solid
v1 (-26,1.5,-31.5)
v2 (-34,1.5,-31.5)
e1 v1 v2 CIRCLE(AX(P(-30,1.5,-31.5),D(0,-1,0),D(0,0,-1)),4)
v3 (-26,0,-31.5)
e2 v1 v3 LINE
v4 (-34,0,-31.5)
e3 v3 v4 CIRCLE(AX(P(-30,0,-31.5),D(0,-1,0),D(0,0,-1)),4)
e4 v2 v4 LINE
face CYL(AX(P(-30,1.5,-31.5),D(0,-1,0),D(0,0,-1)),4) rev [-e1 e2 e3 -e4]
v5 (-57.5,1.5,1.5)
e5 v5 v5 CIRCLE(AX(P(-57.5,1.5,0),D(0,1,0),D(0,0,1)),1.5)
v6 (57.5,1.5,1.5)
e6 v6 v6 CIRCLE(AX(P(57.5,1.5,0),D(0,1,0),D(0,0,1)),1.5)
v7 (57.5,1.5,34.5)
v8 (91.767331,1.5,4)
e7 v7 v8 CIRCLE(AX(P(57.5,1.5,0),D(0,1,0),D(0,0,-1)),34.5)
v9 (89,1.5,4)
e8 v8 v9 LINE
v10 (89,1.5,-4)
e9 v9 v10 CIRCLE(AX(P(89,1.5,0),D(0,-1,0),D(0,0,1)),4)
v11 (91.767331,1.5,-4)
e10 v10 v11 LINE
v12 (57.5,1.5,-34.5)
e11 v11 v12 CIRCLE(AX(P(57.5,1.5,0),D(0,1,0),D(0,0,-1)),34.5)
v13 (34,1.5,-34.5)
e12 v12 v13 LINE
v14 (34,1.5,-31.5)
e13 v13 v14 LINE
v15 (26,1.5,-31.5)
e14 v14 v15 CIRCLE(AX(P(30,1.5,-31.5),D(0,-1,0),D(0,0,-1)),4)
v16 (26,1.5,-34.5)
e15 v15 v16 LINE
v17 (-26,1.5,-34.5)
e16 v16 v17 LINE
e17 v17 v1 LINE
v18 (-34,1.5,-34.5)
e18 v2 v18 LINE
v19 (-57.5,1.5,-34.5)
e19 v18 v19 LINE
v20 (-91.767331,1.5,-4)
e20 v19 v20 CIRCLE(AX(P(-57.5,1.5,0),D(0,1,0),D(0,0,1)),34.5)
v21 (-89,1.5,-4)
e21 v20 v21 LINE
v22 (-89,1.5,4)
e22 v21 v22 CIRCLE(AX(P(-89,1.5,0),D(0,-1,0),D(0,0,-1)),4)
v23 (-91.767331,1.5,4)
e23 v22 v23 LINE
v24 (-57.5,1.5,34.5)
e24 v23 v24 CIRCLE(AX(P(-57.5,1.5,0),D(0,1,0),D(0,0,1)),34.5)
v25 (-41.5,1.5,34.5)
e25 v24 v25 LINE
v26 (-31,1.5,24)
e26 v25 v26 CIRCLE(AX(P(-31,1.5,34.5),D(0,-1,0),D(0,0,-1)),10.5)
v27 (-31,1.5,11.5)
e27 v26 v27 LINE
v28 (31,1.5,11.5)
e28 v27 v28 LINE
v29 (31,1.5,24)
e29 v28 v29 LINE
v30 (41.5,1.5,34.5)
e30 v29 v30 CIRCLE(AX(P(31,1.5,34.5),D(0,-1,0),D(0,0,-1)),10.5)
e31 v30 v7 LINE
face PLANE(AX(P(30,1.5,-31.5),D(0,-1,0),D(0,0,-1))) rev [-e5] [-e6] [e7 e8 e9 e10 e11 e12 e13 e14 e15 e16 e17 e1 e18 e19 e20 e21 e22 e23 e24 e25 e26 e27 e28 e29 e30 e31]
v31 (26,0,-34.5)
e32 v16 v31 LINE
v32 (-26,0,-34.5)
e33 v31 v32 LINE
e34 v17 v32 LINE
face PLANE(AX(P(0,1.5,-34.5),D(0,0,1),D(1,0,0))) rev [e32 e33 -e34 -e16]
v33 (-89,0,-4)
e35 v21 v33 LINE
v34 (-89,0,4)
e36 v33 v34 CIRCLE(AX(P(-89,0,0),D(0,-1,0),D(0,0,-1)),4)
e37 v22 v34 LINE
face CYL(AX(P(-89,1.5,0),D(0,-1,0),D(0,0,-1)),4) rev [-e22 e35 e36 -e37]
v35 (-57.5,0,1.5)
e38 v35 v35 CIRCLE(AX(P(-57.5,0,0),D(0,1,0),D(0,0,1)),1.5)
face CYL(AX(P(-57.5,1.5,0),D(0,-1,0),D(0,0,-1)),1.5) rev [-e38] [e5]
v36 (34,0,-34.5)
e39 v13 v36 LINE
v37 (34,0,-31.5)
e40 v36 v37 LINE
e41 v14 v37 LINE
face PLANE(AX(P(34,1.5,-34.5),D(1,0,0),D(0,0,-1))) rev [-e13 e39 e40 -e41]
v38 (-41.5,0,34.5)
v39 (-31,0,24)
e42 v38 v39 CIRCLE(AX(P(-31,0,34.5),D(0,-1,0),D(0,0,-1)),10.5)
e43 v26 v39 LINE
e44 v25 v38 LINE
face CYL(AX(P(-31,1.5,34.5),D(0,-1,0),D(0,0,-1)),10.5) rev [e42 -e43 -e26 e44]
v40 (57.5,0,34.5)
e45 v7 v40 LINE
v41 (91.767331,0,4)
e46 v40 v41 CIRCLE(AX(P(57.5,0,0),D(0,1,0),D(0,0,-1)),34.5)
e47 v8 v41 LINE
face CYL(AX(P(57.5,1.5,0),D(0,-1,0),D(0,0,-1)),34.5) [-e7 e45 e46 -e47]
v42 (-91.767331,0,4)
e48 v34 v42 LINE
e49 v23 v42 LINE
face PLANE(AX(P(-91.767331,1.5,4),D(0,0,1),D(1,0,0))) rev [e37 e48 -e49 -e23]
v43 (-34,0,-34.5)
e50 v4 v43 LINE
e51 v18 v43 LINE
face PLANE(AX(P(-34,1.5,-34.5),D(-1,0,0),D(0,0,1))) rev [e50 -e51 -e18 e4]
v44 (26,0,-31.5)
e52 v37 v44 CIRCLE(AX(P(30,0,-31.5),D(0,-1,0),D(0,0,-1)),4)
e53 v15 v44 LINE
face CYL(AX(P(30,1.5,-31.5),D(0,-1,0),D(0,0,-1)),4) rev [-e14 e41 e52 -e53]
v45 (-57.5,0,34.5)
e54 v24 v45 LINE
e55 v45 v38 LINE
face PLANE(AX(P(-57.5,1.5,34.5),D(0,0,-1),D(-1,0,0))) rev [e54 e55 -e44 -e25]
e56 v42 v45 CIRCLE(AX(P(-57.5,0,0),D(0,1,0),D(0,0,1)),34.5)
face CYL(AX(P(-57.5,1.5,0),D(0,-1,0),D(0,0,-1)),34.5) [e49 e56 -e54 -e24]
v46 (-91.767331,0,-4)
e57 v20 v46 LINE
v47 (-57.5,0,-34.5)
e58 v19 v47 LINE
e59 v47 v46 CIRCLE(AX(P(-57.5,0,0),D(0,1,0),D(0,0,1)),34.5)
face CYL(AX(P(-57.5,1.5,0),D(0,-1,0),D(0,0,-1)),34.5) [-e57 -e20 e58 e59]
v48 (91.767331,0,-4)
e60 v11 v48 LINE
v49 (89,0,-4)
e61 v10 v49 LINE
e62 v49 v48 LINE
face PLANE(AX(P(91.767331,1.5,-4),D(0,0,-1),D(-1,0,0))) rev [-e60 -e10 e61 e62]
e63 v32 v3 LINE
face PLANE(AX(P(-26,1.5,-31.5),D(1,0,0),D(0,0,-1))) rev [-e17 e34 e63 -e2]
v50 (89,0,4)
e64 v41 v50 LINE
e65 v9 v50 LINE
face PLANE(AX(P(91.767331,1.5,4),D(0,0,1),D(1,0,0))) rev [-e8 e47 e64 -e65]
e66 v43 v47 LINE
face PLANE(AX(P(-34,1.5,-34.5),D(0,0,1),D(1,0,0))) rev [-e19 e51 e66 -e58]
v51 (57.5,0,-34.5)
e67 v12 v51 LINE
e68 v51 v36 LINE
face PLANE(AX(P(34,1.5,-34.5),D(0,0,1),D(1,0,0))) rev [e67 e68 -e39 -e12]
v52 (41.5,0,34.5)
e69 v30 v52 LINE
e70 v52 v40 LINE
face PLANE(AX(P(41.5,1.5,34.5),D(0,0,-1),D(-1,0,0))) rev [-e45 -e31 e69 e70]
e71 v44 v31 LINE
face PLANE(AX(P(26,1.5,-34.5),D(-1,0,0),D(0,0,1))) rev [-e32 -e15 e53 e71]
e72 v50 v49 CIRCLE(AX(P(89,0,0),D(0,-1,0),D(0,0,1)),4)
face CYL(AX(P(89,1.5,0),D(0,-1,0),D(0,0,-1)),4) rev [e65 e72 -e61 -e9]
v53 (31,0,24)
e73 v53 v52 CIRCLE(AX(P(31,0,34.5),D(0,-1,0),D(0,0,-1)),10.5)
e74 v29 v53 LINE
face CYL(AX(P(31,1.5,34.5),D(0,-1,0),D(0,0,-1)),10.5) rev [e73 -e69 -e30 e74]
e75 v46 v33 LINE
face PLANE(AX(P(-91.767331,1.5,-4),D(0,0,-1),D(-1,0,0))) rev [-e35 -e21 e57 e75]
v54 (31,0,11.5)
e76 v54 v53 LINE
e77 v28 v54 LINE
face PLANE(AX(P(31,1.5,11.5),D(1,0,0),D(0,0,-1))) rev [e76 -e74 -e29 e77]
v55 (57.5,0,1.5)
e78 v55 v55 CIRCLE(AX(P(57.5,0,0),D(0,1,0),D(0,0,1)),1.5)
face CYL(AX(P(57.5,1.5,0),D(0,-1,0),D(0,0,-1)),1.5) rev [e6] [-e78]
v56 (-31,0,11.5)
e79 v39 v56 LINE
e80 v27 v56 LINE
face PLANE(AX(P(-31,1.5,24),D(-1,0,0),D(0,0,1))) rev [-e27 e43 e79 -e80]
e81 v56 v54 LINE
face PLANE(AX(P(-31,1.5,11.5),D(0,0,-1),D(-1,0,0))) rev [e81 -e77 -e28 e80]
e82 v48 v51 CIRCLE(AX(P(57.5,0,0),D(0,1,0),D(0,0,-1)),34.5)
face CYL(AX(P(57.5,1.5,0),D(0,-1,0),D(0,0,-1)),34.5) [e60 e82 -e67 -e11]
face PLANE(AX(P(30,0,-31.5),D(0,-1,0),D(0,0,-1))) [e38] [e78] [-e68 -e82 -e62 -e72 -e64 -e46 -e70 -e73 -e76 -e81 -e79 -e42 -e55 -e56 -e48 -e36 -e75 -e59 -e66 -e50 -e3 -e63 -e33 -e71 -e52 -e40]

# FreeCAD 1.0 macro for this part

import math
import FreeCAD as App
import Part
import Sketcher
Q = App.Units.Quantity

doc = App.newDocument("Part")
body = doc.addObject("PartDesign::Body", "Body")

sketch1 = body.newObject("Sketcher::SketchObject", "Sketch")
sketch1.AttachmentSupport = (doc.getObject("XZ_Plane"), [""])
sketch1.MapMode = "FlatFace"
sketch1.addGeometry(Part.LineSegment(App.Vector(-26, -34.5, 0), App.Vector(-26, -31.5, 0)), False)
sketch1.addGeometry(Part.ArcOfCircle(Part.Circle(App.Vector(-30, -31.5, 0), App.Vector(0, 0, 1), 4), math.radians(0), math.radians(180)), False)
sketch1.addGeometry(Part.LineSegment(App.Vector(-34, -31.5, 0), App.Vector(-34, -34.5, 0)), False)
sketch1.addGeometry(Part.LineSegment(App.Vector(-34, -34.5, 0), App.Vector(-57.5, -34.5, 0)), False)
sketch1.addGeometry(Part.ArcOfCircle(Part.Circle(App.Vector(-57.5, 0, 0), App.Vector(0, 0, 1), 34.5), math.radians(-173), math.radians(-90)), False)
sketch1.addGeometry(Part.LineSegment(App.Vector(-91.8, -4, 0), App.Vector(-89, -4, 0)), False)
sketch1.addGeometry(Part.ArcOfCircle(Part.Circle(App.Vector(-89, 0, 0), App.Vector(0, 0, 1), 4), math.radians(-90), math.radians(90)), False)
sketch1.addGeometry(Part.LineSegment(App.Vector(-89, 4, 0), App.Vector(-91.8, 4, 0)), False)
sketch1.addGeometry(Part.ArcOfCircle(Part.Circle(App.Vector(-57.5, 0, 0), App.Vector(0, 0, 1), 34.5), math.radians(90), math.radians(173)), False)
sketch1.addGeometry(Part.LineSegment(App.Vector(-57.5, 34.5, 0), App.Vector(-41.5, 34.5, 0)), False)
sketch1.addGeometry(Part.ArcOfCircle(Part.Circle(App.Vector(-31, 34.5, 0), App.Vector(0, 0, 1), 10.5), math.radians(-180), math.radians(-90)), False)
sketch1.addGeometry(Part.LineSegment(App.Vector(-31, 24, 0), App.Vector(-31, 11.5, 0)), False)
sketch1.addGeometry(Part.LineSegment(App.Vector(-31, 11.5, 0), App.Vector(31, 11.5, 0)), False)
sketch1.addGeometry(Part.LineSegment(App.Vector(31, 11.5, 0), App.Vector(31, 24, 0)), False)
sketch1.addGeometry(Part.ArcOfCircle(Part.Circle(App.Vector(31, 34.5, 0), App.Vector(0, 0, 1), 10.5), math.radians(-90), math.radians(0)), False)
sketch1.addGeometry(Part.LineSegment(App.Vector(41.5, 34.5, 0), App.Vector(57.5, 34.5, 0)), False)
sketch1.addGeometry(Part.ArcOfCircle(Part.Circle(App.Vector(57.5, 0, 0), App.Vector(0, 0, 1), 34.5), math.radians(7), math.radians(90)), False)
sketch1.addGeometry(Part.LineSegment(App.Vector(91.8, 4, 0), App.Vector(89, 4, 0)), False)
sketch1.addGeometry(Part.ArcOfCircle(Part.Circle(App.Vector(89, 0, 0), App.Vector(0, 0, 1), 4), math.radians(90), math.radians(270)), False)
sketch1.addGeometry(Part.LineSegment(App.Vector(89, -4, 0), App.Vector(91.8, -4, 0)), False)
sketch1.addGeometry(Part.ArcOfCircle(Part.Circle(App.Vector(57.5, 0, 0), App.Vector(0, 0, 1), 34.5), math.radians(-90), math.radians(-7)), False)
sketch1.addGeometry(Part.LineSegment(App.Vector(57.5, -34.5, 0), App.Vector(34, -34.5, 0)), False)
sketch1.addGeometry(Part.LineSegment(App.Vector(34, -34.5, 0), App.Vector(34, -31.5, 0)), False)
sketch1.addGeometry(Part.ArcOfCircle(Part.Circle(App.Vector(30, -31.5, 0), App.Vector(0, 0, 1), 4), math.radians(0), math.radians(180)), False)
sketch1.addGeometry(Part.LineSegment(App.Vector(26, -31.5, 0), App.Vector(26, -34.5, 0)), False)
sketch1.addGeometry(Part.LineSegment(App.Vector(26, -34.5, 0), App.Vector(-26, -34.5, 0)), False)
sketch1.addGeometry(Part.Circle(App.Vector(-57.5, 0, 0), App.Vector(0, 0, 1), 1.5), False)
sketch1.addGeometry(Part.Circle(App.Vector(57.5, 0, 0), App.Vector(0, 0, 1), 1.5), False)
sketch1.addConstraint(Sketcher.Constraint("Tangent", 0, 2, 1, 1))
sketch1.addConstraint(Sketcher.Constraint("Tangent", 1, 2, 2, 1))
sketch1.addConstraint(Sketcher.Constraint("Coincident", 2, 2, 3, 1))
sketch1.addConstraint(Sketcher.Constraint("Tangent", 3, 2, 4, 2))
sketch1.addConstraint(Sketcher.Constraint("Coincident", 4, 1, 5, 1))
sketch1.addConstraint(Sketcher.Constraint("Tangent", 5, 2, 6, 1))
sketch1.addConstraint(Sketcher.Constraint("Tangent", 6, 2, 7, 1))
sketch1.addConstraint(Sketcher.Constraint("Coincident", 7, 2, 8, 2))
sketch1.addConstraint(Sketcher.Constraint("Tangent", 8, 1, 9, 1))
sketch1.addConstraint(Sketcher.Constraint("Coincident", 9, 2, 10, 1))
sketch1.addConstraint(Sketcher.Constraint("Coincident", 10, 2, 11, 1))
sketch1.addConstraint(Sketcher.Constraint("Coincident", 11, 2, 12, 1))
sketch1.addConstraint(Sketcher.Constraint("Coincident", 12, 2, 13, 1))
sketch1.addConstraint(Sketcher.Constraint("Coincident", 13, 2, 14, 1))
sketch1.addConstraint(Sketcher.Constraint("Coincident", 14, 2, 15, 1))
sketch1.addConstraint(Sketcher.Constraint("Tangent", 15, 2, 16, 2))
sketch1.addConstraint(Sketcher.Constraint("Coincident", 16, 1, 17, 1))
sketch1.addConstraint(Sketcher.Constraint("Tangent", 17, 2, 18, 1))
sketch1.addConstraint(Sketcher.Constraint("Tangent", 18, 2, 19, 1))
sketch1.addConstraint(Sketcher.Constraint("Coincident", 19, 2, 20, 2))
sketch1.addConstraint(Sketcher.Constraint("Tangent", 20, 1, 21, 1))
sketch1.addConstraint(Sketcher.Constraint("Coincident", 21, 2, 22, 1))
sketch1.addConstraint(Sketcher.Constraint("Tangent", 22, 2, 23, 1))
sketch1.addConstraint(Sketcher.Constraint("Tangent", 23, 2, 24, 1))
sketch1.addConstraint(Sketcher.Constraint("Coincident", 24, 2, 25, 1))
sketch1.addConstraint(Sketcher.Constraint("Coincident", 25, 2, 0, 1))
sketch1.addConstraint(Sketcher.Constraint("Vertical", 0))
sketch1.addConstraint(Sketcher.Constraint("Vertical", 2))
sketch1.addConstraint(Sketcher.Constraint("Horizontal", 3))
sketch1.addConstraint(Sketcher.Constraint("Horizontal", 5))
sketch1.addConstraint(Sketcher.Constraint("Horizontal", 7))
sketch1.addConstraint(Sketcher.Constraint("Horizontal", 9))
sketch1.addConstraint(Sketcher.Constraint("Vertical", 11))
sketch1.addConstraint(Sketcher.Constraint("Horizontal", 12))
sketch1.addConstraint(Sketcher.Constraint("Vertical", 13))
sketch1.addConstraint(Sketcher.Constraint("Horizontal", 15))
sketch1.addConstraint(Sketcher.Constraint("Horizontal", 17))
sketch1.addConstraint(Sketcher.Constraint("Horizontal", 19))
sketch1.addConstraint(Sketcher.Constraint("Horizontal", 21))
sketch1.addConstraint(Sketcher.Constraint("Vertical", 22))
sketch1.addConstraint(Sketcher.Constraint("Vertical", 24))
sketch1.addConstraint(Sketcher.Constraint("Horizontal", 25))
sketch1.addConstraint(Sketcher.Constraint("Coincident", 8, 3, 4, 3))
sketch1.addConstraint(Sketcher.Constraint("Coincident", 20, 3, 16, 3))
sketch1.addConstraint(Sketcher.Constraint("Coincident", 26, 3, 4, 3))
sketch1.addConstraint(Sketcher.Constraint("Coincident", 27, 3, 16, 3))
sketch1.addConstraint(Sketcher.Constraint("Equal", 1, 6))
sketch1.addConstraint(Sketcher.Constraint("Equal", 4, 8))
sketch1.addConstraint(Sketcher.Constraint("Equal", 10, 14))
sketch1.addConstraint(Sketcher.Constraint("Equal", 8, 16))
sketch1.addConstraint(Sketcher.Constraint("Equal", 6, 18))
sketch1.addConstraint(Sketcher.Constraint("Equal", 16, 20))
sketch1.addConstraint(Sketcher.Constraint("Equal", 18, 23))
sketch1.addConstraint(Sketcher.Constraint("Equal", 26, 27))
sketch1.addConstraint(Sketcher.Constraint("Symmetric", 4, 3, 16, 3, -1, 1))
sketch1.addConstraint(Sketcher.Constraint("Symmetric", 6, 3, 18, 3, -1, 1))
sketch1.addConstraint(Sketcher.Constraint("Symmetric", 10, 3, 14, 3, -2))
sketch1.addConstraint(Sketcher.Constraint("Symmetric", 1, 3, 23, 3, -2))
sketch1.addConstraint(Sketcher.Constraint("Symmetric", 7, 2, 16, 1, -2))
sketch1.addConstraint(Sketcher.Constraint("Horizontal", 14, 3, 8, 1))
sketch1.addConstraint(Sketcher.Constraint("Horizontal", 21, 2, 24, 2))
sketch1.addConstraint(Sketcher.Constraint("Vertical", 14, 3, 12, 2))
sketch1.addConstraint(Sketcher.Constraint("Diameter", 26, Q("3 mm")))
sketch1.addConstraint(Sketcher.Constraint("Radius", 1, Q("4 mm")))
sketch1.addConstraint(Sketcher.Constraint("Radius", 4, Q("34.5 mm")))
sketch1.addConstraint(Sketcher.Constraint("Radius", 10, Q("10.5 mm")))
sketch1.addConstraint(Sketcher.Constraint("DistanceX", 9, 1, 9, 2, Q("16 mm")))
sketch1.addConstraint(Sketcher.Constraint("DistanceX", 12, 1, 12, 2, Q("62 mm")))
sketch1.addConstraint(Sketcher.Constraint("DistanceX", 25, 2, 25, 1, Q("52 mm")))
sketch1.addConstraint(Sketcher.Constraint("DistanceY", 0, 1, 0, 2, Q("3 mm")))
sketch1.addConstraint(Sketcher.Constraint("DistanceX", 3, 2, 3, 1, Q("23.5 mm")))
sketch1.addConstraint(Sketcher.Constraint("DistanceY", 11, 2, 11, 1, Q("12.5 mm")))
sketch1.addConstraint(Sketcher.Constraint("DistanceX", 6, 3, -1, 1, Q("89 mm")))
pad1 = body.newObject("PartDesign::Pad", "Pad")
pad1.Profile = sketch1
pad1.Length = 1.5
pad1.Reversed = True

doc.recompute()
